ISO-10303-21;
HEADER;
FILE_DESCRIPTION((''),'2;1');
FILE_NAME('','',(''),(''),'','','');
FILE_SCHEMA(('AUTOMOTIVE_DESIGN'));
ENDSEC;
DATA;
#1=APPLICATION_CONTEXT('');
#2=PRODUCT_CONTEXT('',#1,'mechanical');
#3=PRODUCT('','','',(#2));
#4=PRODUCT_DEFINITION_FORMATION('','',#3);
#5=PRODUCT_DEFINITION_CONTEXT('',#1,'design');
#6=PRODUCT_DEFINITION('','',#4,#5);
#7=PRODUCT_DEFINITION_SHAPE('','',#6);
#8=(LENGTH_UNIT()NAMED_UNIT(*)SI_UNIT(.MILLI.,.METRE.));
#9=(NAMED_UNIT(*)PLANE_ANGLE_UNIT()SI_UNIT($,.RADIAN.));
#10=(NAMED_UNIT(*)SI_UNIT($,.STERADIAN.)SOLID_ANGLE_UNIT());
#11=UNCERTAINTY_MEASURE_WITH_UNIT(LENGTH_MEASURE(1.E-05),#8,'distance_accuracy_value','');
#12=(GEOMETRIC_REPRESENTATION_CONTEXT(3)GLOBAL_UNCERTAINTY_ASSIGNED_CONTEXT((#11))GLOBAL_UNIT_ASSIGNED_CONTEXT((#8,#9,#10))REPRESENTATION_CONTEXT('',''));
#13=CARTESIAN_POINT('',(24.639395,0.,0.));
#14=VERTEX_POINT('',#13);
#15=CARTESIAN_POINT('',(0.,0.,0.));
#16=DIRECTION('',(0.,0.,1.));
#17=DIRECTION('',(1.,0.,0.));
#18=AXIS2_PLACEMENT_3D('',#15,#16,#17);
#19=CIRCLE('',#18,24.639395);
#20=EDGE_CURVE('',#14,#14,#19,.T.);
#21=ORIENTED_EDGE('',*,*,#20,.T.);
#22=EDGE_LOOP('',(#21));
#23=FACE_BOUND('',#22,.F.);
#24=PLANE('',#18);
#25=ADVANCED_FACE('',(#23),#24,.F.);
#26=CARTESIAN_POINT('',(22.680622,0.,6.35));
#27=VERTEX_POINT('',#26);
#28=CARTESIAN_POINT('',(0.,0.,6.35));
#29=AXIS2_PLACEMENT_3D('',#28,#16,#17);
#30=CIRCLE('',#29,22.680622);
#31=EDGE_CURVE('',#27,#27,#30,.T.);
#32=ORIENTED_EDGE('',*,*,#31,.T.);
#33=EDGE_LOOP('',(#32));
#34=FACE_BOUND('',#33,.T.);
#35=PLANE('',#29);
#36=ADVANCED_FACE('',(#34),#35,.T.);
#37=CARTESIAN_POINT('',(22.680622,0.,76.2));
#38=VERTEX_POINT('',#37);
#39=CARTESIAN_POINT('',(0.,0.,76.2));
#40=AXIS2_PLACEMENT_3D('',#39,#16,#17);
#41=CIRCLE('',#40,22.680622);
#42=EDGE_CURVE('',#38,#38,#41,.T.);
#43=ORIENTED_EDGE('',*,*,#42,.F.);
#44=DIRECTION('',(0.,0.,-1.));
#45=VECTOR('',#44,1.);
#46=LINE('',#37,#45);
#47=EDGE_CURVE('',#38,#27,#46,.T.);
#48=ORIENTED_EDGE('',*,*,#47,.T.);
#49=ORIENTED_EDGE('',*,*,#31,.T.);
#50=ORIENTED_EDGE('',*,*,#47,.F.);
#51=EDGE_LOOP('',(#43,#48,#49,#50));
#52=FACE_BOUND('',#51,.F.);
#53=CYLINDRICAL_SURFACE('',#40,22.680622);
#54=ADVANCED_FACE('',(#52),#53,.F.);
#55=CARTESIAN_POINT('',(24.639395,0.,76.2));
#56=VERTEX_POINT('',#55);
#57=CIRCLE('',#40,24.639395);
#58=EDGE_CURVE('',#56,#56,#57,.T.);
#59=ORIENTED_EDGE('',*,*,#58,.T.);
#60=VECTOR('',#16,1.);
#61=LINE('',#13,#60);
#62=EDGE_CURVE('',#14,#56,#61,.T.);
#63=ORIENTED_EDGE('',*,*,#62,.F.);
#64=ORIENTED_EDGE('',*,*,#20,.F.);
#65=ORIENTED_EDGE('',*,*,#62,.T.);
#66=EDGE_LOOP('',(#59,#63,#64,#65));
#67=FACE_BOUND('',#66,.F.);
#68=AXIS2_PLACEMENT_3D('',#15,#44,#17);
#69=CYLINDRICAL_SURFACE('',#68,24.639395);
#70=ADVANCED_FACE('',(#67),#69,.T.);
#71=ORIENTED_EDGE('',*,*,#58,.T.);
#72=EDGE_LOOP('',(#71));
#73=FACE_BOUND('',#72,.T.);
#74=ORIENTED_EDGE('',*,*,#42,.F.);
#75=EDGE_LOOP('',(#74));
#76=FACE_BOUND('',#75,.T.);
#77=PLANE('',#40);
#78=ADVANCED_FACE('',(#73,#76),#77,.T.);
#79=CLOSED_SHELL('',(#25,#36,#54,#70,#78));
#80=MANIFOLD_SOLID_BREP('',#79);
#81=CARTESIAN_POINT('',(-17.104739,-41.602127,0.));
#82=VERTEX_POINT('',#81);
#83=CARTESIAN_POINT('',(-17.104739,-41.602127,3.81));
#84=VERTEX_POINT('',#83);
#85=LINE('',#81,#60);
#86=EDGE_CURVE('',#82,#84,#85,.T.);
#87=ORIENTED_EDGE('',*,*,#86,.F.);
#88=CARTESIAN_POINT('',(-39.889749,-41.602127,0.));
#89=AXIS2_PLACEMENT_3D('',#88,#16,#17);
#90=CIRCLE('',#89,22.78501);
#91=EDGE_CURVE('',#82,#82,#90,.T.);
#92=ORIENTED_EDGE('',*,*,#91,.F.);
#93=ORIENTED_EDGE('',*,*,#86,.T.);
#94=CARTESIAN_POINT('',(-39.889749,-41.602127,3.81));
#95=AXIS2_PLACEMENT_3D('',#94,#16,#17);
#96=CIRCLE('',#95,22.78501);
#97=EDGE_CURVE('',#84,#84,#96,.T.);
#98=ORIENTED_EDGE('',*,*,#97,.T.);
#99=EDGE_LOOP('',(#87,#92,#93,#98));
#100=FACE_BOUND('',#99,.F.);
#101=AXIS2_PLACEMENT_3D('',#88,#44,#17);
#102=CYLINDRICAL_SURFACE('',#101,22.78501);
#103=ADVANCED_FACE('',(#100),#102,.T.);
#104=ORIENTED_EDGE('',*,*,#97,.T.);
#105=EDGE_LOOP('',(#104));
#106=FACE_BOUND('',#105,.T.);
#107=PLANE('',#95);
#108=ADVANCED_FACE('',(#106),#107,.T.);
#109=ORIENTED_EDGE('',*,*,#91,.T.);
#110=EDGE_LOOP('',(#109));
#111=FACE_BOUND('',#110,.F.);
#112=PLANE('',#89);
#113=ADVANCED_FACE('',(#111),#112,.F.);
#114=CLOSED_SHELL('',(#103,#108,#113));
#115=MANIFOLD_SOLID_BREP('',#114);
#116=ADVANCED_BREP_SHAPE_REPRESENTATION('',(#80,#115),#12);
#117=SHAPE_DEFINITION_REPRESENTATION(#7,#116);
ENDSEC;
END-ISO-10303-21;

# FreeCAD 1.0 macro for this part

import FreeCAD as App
import Part
import Sketcher
from FreeCAD import Vector
Q = App.Units.Quantity

doc = App.newDocument("Part")
body = doc.addObject("PartDesign::Body", "Body")

# Sketch on XY plane
sketch1 = body.newObject("Sketcher::SketchObject", "Sketch")
sketch1.AttachmentSupport = (doc.getObject("XY_Plane"), [""])
sketch1.MapMode = "FlatFace"
sketch1.addGeometry(Part.Circle(Vector(0, 0, 0), Vector(0, 0, 1), 25), False)
sketch1.addConstraint([
    Sketcher.Constraint("Coincident", 0, 3, -1, 1),
    Sketcher.Constraint("Diameter", 0, 49.27879),
])
pad1 = body.newObject("PartDesign::Pad", "Pad")
pad1.Profile = sketch1
pad1.Length = Q("3 in")

# Sketch on XY plane
sketch2 = body.newObject("Sketcher::SketchObject", "Sketch001")
sketch2.AttachmentSupport = (doc.getObject("XY_Plane"), [""])
sketch2.MapMode = "FlatFace"
sketch2.AttachmentOffset = App.Placement(Vector(0, 0, 3 * 25.4), App.Rotation())
sketch2.addGeometry(Part.Circle(Vector(0, 0, 0), Vector(0, 0, 1), 23), False)
sketch2.addConstraint([
    Sketcher.Constraint("Coincident", 0, 3, -1, 1),
    Sketcher.Constraint("Diameter", 0, 45.361244),
])
pocket1 = body.newObject("PartDesign::Pocket", "Pocket")
pocket1.Profile = sketch2
pocket1.Length = Q("2.75 in")
body2 = doc.addObject("PartDesign::Body", "Body001")

# Sketch on XY plane
sketch3 = body2.newObject("Sketcher::SketchObject", "Sketch002")
sketch3.AttachmentSupport = (doc.getObject("XY_Plane001"), [""])
sketch3.MapMode = "FlatFace"
sketch3.addGeometry(Part.Circle(Vector(-40, -42, 0), Vector(0, 0, 1), 23), False)
sketch3.addConstraint([
    Sketcher.Constraint("Diameter", 0, 45.57002),
    Sketcher.Constraint("DistanceX", 0, 3, -1, 1, 39.889749),
    Sketcher.Constraint("DistanceY", 0, 3, -1, 1, 41.602127),
])
pad2 = body2.newObject("PartDesign::Pad", "Pad001")
pad2.Profile = sketch3
pad2.Length = Q("0.15 in")

doc.recompute()
